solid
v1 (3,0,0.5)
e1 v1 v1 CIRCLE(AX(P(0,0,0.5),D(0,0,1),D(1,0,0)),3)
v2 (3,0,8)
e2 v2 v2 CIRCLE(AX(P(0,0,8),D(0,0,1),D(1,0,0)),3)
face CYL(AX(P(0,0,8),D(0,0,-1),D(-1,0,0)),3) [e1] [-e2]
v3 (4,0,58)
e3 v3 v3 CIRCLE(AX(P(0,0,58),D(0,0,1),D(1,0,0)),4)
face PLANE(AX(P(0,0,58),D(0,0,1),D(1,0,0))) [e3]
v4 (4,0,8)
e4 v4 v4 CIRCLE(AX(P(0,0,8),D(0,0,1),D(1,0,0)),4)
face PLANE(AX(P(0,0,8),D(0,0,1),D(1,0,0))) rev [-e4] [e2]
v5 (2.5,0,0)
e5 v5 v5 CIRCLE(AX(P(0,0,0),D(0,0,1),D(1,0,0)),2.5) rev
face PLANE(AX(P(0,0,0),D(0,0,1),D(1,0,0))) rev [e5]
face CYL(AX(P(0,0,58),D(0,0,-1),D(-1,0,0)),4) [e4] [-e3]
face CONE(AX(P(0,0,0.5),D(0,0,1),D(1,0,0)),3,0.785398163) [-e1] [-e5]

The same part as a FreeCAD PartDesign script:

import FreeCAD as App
import Part
import Sketcher
Q = App.Units.Quantity


def edges_at(feature, points):
    """Names of the edges that pass closest to the given points."""
    edges = feature.Shape.Edges
    near = lambda p: min(range(len(edges)), key=lambda i: edges[i].distToShape(Part.Vertex(*p))[0])
    return sorted({f"Edge{near(p) + 1}" for p in points})

doc = App.newDocument("Part")
body = doc.addObject("PartDesign::Body", "Body")

# Sketch on XY plane
sketch1 = body.newObject("Sketcher::SketchObject", "Sketch")
sketch1.AttachmentSupport = (doc.getObject("XY_Plane"), [""])
sketch1.MapMode = "FlatFace"
sketch1.addGeometry(Part.Circle(App.Vector(0, 0, 0), App.Vector(0, 0, 1), 3), False)
sketch1.addConstraint([
    Sketcher.Constraint("Coincident", 0, 3, -1, 1),
    Sketcher.Constraint("Diameter", 0, Q("6 mm")),
])
pad1 = body.newObject("PartDesign::Pad", "Pad")
pad1.Profile = sketch1
pad1.Length = 8
doc.recompute()

chamfer = body.newObject("PartDesign::Chamfer", "Chamfer")
chamfer.Base = (pad1, edges_at(pad1, [(-3, 0, 0)]))
chamfer.Size = 0.5

# Sketch on XY plane
sketch2 = body.newObject("Sketcher::SketchObject", "Sketch001")
sketch2.AttachmentSupport = (doc.getObject("XY_Plane"), [""])
sketch2.MapMode = "FlatFace"
sketch2.AttachmentOffset = App.Placement(App.Vector(0, 0, 8), App.Rotation())
sketch2.addGeometry(Part.Circle(App.Vector(0, 0, 0), App.Vector(0, 0, 1), 4), False)
sketch2.addConstraint([
    Sketcher.Constraint("Coincident", 0, 3, -1, 1),
    Sketcher.Constraint("Diameter", 0, Q("8 mm")),
])
pad2 = body.newObject("PartDesign::Pad", "Pad001")
pad2.Profile = sketch2
pad2.Length = 50

doc.recompute()
